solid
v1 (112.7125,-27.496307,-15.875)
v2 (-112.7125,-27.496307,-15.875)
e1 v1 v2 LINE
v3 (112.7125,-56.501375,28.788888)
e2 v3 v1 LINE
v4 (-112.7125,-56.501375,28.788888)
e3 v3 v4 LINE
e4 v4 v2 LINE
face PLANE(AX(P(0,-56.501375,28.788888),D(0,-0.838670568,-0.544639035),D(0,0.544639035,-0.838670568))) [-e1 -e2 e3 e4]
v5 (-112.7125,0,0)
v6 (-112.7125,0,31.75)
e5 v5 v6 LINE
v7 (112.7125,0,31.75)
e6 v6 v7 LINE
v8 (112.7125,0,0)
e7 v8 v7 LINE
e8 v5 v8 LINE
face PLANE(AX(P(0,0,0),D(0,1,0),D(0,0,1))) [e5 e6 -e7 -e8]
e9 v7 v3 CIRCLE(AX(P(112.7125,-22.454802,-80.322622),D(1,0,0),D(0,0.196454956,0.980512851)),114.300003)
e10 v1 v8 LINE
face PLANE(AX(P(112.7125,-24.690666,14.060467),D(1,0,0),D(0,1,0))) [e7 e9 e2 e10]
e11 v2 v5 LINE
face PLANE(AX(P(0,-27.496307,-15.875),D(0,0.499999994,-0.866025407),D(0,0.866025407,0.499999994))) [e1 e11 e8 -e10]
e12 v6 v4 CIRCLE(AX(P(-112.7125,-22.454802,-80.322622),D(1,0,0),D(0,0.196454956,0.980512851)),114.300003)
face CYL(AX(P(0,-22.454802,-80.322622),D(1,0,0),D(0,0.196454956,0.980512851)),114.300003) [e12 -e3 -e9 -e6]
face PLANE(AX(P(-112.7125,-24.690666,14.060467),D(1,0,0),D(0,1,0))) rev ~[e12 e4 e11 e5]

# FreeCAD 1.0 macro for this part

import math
import FreeCAD as App
import Part
import Sketcher
from FreeCAD import Vector
Q = App.Units.Quantity

doc = App.newDocument("Part")
body = doc.addObject("PartDesign::Body", "Body")

# Sketch on YZ plane
sketch1 = body.newObject("Sketcher::SketchObject", "Sketch")
sketch1.AttachmentSupport = (doc.getObject("YZ_Plane"), [""])
sketch1.MapMode = "FlatFace"
sketch1.addGeometry([
    Part.LineSegment(Vector(-27, -16, 0), Vector(0, 0, 0)),
    Part.LineSegment(Vector(0, 0, 0), Vector(0, 32, 0)),
    Part.ArcOfCircle(Part.Circle(Vector(-22, -80, 0), Vector(0, 0, 1), 114), math.radians(79), math.radians(107)),
    Part.LineSegment(Vector(-57, 29, 0), Vector(-27, -16, 0)),
], False)
sketch1.addConstraint([
    Sketcher.Constraint("Coincident", 0, 2, 1, 1),
    Sketcher.Constraint("Coincident", 1, 2, 2, 1),
    Sketcher.Constraint("Coincident", 2, 2, 3, 1),
    Sketcher.Constraint("Coincident", 3, 2, 0, 1),
    Sketcher.Constraint("Vertical", 1),
    Sketcher.Constraint("Coincident", 0, 2, -1, 1),
    Sketcher.Constraint("Radius", 2, Q("4.5000001 in")),
    Sketcher.Constraint("Angle", 0, Q("30 deg")),
    Sketcher.Constraint("Angle", 3, Q("-57 deg")),
    Sketcher.Constraint("DistanceY", 1, 1, 1, 2, Q("1.25 in")),
    Sketcher.Constraint("Distance", 0, Q("1.25 in")),
    Sketcher.Constraint("Distance", 3, Q("53.255581 mm")),
])
pad1 = body.newObject("PartDesign::Pad", "Pad")
pad1.Profile = sketch1
pad1.Length = Q("8.875 in")
pad1.Midplane = True

doc.recompute()
